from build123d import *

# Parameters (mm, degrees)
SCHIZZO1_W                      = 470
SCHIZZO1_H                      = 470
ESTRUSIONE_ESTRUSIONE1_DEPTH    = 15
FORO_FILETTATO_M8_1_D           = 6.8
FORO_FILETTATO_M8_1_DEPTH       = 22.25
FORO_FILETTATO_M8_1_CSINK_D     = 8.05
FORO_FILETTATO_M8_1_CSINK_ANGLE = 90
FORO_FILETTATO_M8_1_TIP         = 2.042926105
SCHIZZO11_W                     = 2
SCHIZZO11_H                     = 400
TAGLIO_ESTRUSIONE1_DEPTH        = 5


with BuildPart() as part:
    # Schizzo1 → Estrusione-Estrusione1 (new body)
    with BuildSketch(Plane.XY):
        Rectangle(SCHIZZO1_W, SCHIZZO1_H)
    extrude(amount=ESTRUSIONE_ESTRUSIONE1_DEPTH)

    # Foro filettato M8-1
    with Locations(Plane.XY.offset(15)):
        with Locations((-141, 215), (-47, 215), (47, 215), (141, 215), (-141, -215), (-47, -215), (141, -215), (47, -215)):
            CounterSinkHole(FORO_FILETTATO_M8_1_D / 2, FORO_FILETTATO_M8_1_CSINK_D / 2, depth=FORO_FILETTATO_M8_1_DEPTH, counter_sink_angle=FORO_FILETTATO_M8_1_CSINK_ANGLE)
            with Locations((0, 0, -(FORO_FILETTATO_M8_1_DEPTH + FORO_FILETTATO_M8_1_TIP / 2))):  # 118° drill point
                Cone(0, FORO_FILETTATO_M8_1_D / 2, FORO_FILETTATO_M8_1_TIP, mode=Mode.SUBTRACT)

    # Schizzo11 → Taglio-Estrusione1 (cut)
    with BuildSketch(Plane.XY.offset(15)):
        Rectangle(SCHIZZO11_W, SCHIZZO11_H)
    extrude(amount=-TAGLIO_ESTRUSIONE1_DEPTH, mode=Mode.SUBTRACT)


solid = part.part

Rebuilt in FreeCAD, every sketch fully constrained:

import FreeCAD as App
import Part
import Sketcher

V = App.Vector

doc = App.newDocument("Part")
body = doc.addObject("PartDesign::Body", "Body")

# Sketch on XY plane
sketch1 = body.newObject("Sketcher::SketchObject", "Sketch")
sketch1.AttachmentSupport = (doc.getObject("XY_Plane"), [""])
sketch1.MapMode = "FlatFace"
sketch1.addGeometry([
    Part.LineSegment(V(-235, 235, 0), V(-235, -235, 0)),
    Part.LineSegment(V(-235, -235, 0), V(235, -235, 0)),
    Part.LineSegment(V(235, -235, 0), V(235, 235, 0)),
    Part.LineSegment(V(235, 235, 0), V(-235, 235, 0)),
], False)
sketch1.addConstraint([
    Sketcher.Constraint("Coincident", 0, 2, 1, 1),
    Sketcher.Constraint("Coincident", 1, 2, 2, 1),
    Sketcher.Constraint("Coincident", 2, 2, 3, 1),
    Sketcher.Constraint("Coincident", 3, 2, 0, 1),
    Sketcher.Constraint("Vertical", 0),
    Sketcher.Constraint("Horizontal", 1),
    Sketcher.Constraint("Vertical", 2),
    Sketcher.Constraint("Horizontal", 3),
    Sketcher.Constraint("Symmetric", 0, 2, 2, 2, -1, 1),
    Sketcher.Constraint("Equal", 3, 0),
    Sketcher.Constraint("DistanceX", 1, 1, 1, 2, 470.0),
])
pad1 = body.newObject("PartDesign::Pad", "Pad")
pad1.Profile = sketch1
pad1.Length = 15

# Sketch on XY plane
sketch2 = body.newObject("Sketcher::SketchObject", "Sketch001")
sketch2.AttachmentSupport = (doc.getObject("XY_Plane"), [""])
sketch2.MapMode = "FlatFace"
sketch2.AttachmentOffset = App.Placement(V(0, 0, 15), App.Rotation())
sketch2.addGeometry([
    Part.Circle(V(-141, 215, 0), V(0, 0, 1), 3.4),  # 0
    Part.Circle(V(-47, 215, 0), V(0, 0, 1), 3.4),  # 1
    Part.Circle(V(47, 215, 0), V(0, 0, 1), 3.4),  # 2
    Part.Circle(V(141, 215, 0), V(0, 0, 1), 3.4),  # 3
    Part.Circle(V(-141, -215, 0), V(0, 0, 1), 3.4),  # 4
    Part.Circle(V(-47, -215, 0), V(0, 0, 1), 3.4),  # 5
    Part.Circle(V(141, -215, 0), V(0, 0, 1), 3.4),  # 6
    Part.Circle(V(47, -215, 0), V(0, 0, 1), 3.4),  # 7
], False)
sketch2.addConstraint([
    Sketcher.Constraint("Equal", 0, 1),
    Sketcher.Constraint("Equal", 1, 2),
    Sketcher.Constraint("Equal", 2, 3),
    Sketcher.Constraint("Equal", 3, 4),
    Sketcher.Constraint("Equal", 4, 5),
    Sketcher.Constraint("Equal", 5, 6),
    Sketcher.Constraint("Equal", 6, 7),
    Sketcher.Constraint("Symmetric", 3, 3, 4, 3, -1, 1),
    Sketcher.Constraint("Symmetric", 2, 3, 5, 3, -1, 1),
    Sketcher.Constraint("Symmetric", 0, 3, 6, 3, -1, 1),
    Sketcher.Constraint("Symmetric", 1, 3, 7, 3, -1, 1),
    Sketcher.Constraint("Symmetric", 1, 3, 2, 3, -2),
    Sketcher.Constraint("Symmetric", 0, 3, 3, 3, -2),
    Sketcher.Constraint("Horizontal", 0, 3, 1, 3),
    Sketcher.Constraint("Diameter", 0, 6.8),
    Sketcher.Constraint("DistanceX", 0, 3, -1, 1, 141.0),
    Sketcher.Constraint("DistanceY", -1, 1, 0, 3, 215.0),
    Sketcher.Constraint("DistanceX", 1, 3, -1, 1, 47.0),
])
doc.recompute()
hole = body.newObject("PartDesign::Hole", "Hole")
hole.Profile = sketch2
hole.ThreadType = "None"
hole.Diameter = 6.8
hole.DepthType = "Dimension"
hole.Depth = 22.25
hole.DrillPoint = "Angled"
hole.DrillPointAngle = 118
hole.HoleCutType = "Countersink"
hole.HoleCutDiameter = 8.05
hole.HoleCutCountersinkAngle = 90

# Sketch on XY plane
sketch3 = body.newObject("Sketcher::SketchObject", "Sketch002")
sketch3.AttachmentSupport = (doc.getObject("XY_Plane"), [""])
sketch3.MapMode = "FlatFace"
sketch3.AttachmentOffset = App.Placement(V(0, 0, 15), App.Rotation())
sketch3.addGeometry([
    Part.LineSegment(V(-1, 200, 0), V(-1, -200, 0)),
    Part.LineSegment(V(-1, -200, 0), V(1, -200, 0)),
    Part.LineSegment(V(1, -200, 0), V(1, 200, 0)),
    Part.LineSegment(V(1, 200, 0), V(-1, 200, 0)),
], False)
sketch3.addConstraint([
    Sketcher.Constraint("Coincident", 0, 2, 1, 1),
    Sketcher.Constraint("Coincident", 1, 2, 2, 1),
    Sketcher.Constraint("Coincident", 2, 2, 3, 1),
    Sketcher.Constraint("Coincident", 3, 2, 0, 1),
    Sketcher.Constraint("Vertical", 0),
    Sketcher.Constraint("Horizontal", 1),
    Sketcher.Constraint("Vertical", 2),
    Sketcher.Constraint("Horizontal", 3),
    Sketcher.Constraint("Symmetric", 0, 2, 2, 2, -1, 1),
    Sketcher.Constraint("DistanceX", 1, 1, 1, 2, 2.0),
    Sketcher.Constraint("DistanceY", 0, 2, 0, 1, 400.0),
])
pocket1 = body.newObject("PartDesign::Pocket", "Pocket")
pocket1.Profile = sketch3
pocket1.Length = 5

doc.recompute()
